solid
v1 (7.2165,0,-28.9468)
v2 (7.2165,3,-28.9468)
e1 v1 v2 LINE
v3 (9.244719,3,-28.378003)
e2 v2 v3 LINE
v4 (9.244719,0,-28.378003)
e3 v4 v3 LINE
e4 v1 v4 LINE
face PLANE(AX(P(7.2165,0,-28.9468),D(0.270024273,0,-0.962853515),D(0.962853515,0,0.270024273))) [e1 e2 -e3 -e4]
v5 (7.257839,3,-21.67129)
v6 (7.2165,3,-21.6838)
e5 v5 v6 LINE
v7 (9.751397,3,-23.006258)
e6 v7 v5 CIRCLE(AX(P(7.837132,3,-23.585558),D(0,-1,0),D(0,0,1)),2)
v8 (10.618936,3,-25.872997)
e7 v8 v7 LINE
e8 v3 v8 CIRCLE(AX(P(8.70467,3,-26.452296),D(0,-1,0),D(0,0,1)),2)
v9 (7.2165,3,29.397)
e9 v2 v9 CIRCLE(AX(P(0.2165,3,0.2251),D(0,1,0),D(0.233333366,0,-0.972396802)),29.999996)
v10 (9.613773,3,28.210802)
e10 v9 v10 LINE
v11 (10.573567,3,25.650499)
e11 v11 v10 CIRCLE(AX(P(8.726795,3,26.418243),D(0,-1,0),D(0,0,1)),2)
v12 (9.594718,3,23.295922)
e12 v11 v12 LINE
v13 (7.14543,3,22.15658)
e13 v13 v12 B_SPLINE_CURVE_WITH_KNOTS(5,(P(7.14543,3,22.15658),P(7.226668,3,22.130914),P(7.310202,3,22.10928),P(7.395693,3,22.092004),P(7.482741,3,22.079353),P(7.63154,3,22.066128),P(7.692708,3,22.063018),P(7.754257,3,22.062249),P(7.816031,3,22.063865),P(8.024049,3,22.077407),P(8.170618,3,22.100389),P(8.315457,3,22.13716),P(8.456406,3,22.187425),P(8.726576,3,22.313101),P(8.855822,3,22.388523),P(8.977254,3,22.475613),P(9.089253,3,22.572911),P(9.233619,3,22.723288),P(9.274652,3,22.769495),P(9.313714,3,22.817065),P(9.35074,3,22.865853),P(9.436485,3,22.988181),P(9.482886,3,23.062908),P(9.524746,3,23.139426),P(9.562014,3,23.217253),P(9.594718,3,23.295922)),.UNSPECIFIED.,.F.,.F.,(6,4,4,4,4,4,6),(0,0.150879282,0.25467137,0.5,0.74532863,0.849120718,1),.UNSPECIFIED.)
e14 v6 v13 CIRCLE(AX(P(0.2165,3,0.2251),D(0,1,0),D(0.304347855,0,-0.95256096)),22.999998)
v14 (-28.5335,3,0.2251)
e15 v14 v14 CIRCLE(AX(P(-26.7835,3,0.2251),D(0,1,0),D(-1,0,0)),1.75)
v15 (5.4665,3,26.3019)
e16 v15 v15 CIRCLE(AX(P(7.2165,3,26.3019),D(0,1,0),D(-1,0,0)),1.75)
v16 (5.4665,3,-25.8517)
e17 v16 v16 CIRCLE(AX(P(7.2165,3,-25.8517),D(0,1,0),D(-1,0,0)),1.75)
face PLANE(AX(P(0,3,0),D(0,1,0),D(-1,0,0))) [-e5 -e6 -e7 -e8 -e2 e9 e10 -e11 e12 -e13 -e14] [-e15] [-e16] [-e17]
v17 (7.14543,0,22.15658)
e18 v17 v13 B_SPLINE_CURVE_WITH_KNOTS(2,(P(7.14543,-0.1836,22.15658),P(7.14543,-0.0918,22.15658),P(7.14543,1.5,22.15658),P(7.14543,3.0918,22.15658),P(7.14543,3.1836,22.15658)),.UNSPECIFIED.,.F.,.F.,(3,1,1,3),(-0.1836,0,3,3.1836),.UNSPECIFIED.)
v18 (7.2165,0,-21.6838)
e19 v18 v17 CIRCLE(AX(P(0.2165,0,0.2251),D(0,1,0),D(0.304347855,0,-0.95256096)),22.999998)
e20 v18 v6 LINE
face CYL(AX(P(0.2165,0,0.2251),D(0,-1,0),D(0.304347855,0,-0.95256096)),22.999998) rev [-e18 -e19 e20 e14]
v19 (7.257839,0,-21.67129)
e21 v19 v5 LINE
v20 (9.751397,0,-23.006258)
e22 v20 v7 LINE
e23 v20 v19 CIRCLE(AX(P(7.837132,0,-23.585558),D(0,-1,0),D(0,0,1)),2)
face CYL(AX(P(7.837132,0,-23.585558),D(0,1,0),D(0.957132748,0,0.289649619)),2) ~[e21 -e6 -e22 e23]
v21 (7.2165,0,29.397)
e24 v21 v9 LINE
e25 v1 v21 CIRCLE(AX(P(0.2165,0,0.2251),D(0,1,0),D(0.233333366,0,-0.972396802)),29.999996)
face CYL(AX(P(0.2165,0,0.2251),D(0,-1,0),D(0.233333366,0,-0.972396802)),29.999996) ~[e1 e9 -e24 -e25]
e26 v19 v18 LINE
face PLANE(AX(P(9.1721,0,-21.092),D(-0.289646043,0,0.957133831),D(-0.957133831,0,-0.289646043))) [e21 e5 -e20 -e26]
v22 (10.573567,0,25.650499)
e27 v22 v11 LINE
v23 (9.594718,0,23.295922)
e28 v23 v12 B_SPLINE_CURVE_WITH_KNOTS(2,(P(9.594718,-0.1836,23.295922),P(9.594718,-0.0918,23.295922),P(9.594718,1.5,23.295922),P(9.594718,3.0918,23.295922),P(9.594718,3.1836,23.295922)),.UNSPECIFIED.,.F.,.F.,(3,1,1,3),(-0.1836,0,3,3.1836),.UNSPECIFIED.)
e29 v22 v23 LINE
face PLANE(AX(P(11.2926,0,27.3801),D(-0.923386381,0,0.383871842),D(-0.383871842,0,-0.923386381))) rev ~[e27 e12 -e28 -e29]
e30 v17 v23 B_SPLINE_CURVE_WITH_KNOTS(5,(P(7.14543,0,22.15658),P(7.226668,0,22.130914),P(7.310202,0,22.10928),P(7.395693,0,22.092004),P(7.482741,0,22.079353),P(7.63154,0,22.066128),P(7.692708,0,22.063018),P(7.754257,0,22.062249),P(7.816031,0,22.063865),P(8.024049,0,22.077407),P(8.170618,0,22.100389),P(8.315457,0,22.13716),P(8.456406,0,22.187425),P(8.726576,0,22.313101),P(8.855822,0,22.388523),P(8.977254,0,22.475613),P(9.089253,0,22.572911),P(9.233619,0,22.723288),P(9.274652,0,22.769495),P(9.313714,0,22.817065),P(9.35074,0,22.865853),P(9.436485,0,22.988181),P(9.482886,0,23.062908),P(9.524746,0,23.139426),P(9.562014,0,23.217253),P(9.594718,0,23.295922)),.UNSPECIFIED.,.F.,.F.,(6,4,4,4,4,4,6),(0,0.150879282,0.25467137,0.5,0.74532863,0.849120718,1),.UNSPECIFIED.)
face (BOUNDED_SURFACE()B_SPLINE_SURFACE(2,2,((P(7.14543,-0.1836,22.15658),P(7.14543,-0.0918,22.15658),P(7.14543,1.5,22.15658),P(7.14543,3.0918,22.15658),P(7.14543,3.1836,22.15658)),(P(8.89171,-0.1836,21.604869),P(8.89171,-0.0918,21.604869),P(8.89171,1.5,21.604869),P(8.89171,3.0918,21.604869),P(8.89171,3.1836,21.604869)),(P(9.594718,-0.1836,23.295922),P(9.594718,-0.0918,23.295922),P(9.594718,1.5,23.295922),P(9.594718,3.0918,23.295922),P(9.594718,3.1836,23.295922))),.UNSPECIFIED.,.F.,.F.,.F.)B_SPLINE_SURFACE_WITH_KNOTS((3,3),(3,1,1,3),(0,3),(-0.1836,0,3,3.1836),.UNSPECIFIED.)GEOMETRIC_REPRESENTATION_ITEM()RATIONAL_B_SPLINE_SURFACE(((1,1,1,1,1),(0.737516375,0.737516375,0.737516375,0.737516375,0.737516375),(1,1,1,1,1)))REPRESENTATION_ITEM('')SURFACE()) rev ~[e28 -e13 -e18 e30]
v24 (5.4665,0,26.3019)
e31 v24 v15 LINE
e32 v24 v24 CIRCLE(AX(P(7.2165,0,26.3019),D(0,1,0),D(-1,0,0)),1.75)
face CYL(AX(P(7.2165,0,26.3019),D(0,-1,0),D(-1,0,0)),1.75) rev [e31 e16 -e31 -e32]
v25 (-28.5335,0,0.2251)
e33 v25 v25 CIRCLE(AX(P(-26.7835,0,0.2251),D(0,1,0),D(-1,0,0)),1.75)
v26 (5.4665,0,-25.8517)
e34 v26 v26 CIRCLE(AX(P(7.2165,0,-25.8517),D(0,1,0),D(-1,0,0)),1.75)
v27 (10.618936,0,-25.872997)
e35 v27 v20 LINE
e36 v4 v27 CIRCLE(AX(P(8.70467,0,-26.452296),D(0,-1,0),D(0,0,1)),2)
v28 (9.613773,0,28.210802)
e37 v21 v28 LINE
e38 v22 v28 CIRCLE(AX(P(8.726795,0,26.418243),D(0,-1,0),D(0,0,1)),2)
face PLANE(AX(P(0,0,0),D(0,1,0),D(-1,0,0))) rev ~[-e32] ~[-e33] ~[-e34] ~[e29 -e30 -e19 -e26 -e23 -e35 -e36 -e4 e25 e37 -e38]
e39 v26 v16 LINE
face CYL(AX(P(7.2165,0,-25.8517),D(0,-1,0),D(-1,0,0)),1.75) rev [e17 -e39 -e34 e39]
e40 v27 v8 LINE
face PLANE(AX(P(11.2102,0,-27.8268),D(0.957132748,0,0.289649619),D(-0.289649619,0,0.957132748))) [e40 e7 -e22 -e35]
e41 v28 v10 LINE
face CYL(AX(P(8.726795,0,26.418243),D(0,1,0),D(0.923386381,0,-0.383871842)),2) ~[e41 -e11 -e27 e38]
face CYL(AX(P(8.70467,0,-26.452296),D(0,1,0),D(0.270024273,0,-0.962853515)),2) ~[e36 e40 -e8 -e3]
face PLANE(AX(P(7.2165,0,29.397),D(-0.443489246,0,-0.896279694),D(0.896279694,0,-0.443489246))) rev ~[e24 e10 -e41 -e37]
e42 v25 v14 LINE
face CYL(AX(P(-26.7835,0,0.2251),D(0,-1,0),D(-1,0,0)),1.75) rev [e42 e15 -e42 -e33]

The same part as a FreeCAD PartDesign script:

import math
import FreeCAD as App
import Part
import Sketcher
from FreeCAD import Vector
Q = App.Units.Quantity


def edges_at(feature, points):
    """Names of the edges that pass closest to the given points."""
    edges = feature.Shape.Edges
    near = lambda p: min(range(len(edges)), key=lambda i: edges[i].distToShape(Part.Vertex(*p))[0])
    return sorted({f"Edge{near(p) + 1}" for p in points})

doc = App.newDocument("Part")
params = doc.addObject("Spreadsheet::Sheet", "Params")
for row, (alias, value) in enumerate([
    ("sketch1_radius", "30 mm"),
    ("sketch1_radius2", "23 mm"),
    ("sketch1_diameter", "3.5 mm"),
    ("sketch1_length", "1.75 mm"),
    ("pad1_length", "3 mm"),
    ("fillet_radius", "2 mm"),
], start=1):
    params.set(f"A{row}", alias)
    params.set(f"B{row}", "=" + value)
    params.setAlias(f"B{row}", alias)

body = doc.addObject("PartDesign::Body", "Body")

# Sketch on XZ plane
sketch1 = body.newObject("Sketcher::SketchObject", "Sketch")
sketch1.AttachmentSupport = (doc.getObject("XZ_Plane"), [""])
sketch1.MapMode = "FlatFace"
sketch1.addGeometry([
    Part.LineSegment(Vector(11.2, -27.8, 0), Vector(7.2, -28.9, 0)),  # 0
    Part.ArcOfCircle(Part.Circle(Vector(0.2, 0.2, 0), Vector(0, 0, 1), 30), math.radians(77), math.radians(283)),  # 1
    Part.LineSegment(Vector(7.2, 29.4, 0), Vector(11.3, 27.4, 0)),  # 2
    Part.LineSegment(Vector(11.3, 27.4, 0), Vector(8.8, 21.5, 0)),  # 3
    Part.LineSegment(Vector(8.8, 21.5, 0), Vector(7.2, 22.1, 0)),  # 4
    Part.ArcOfCircle(Part.Circle(Vector(0.2, 0.2, 0), Vector(0, 0, 1), 23), math.radians(72), math.radians(288)),  # 5
    Part.LineSegment(Vector(7.2, -21.7, 0), Vector(9.2, -21.1, 0)),  # 6
    Part.LineSegment(Vector(9.2, -21.1, 0), Vector(11.2, -27.8, 0)),  # 7
    Part.Circle(Vector(7.2, -25.9, 0), Vector(0, 0, 1), 1.8),  # 8
    Part.Circle(Vector(7.2, 26.3, 0), Vector(0, 0, 1), 1.8),  # 9
    Part.Circle(Vector(-26.8, 0.2, 0), Vector(0, 0, 1), 1.8),  # 10
], False)
sketch1.addConstraint([
    Sketcher.Constraint("Coincident", 0, 2, 1, 2),
    Sketcher.Constraint("Coincident", 1, 1, 2, 1),
    Sketcher.Constraint("Coincident", 2, 2, 3, 1),
    Sketcher.Constraint("Coincident", 3, 2, 4, 1),
    Sketcher.Constraint("Coincident", 4, 2, 5, 1),
    Sketcher.Constraint("Coincident", 5, 2, 6, 1),
    Sketcher.Constraint("Coincident", 6, 2, 7, 1),
    Sketcher.Constraint("Coincident", 7, 2, 0, 1),
    Sketcher.Constraint("Coincident", 5, 3, 1, 3),
    Sketcher.Constraint("Equal", 8, 9),
    Sketcher.Constraint("Equal", 9, 10),
    Sketcher.Constraint("Perpendicular", 3, 4),
    Sketcher.Constraint("Perpendicular", 6, 7),
    Sketcher.Constraint("Horizontal", 5, 3, 10, 3),
    Sketcher.Constraint("Vertical", 8, 3, 9, 3),
    Sketcher.Constraint("Vertical", 9, 3, 0, 2),
    Sketcher.Constraint("Vertical", 0, 2, 1, 1),
    Sketcher.Constraint("Vertical", 1, 1, 4, 2),
    Sketcher.Constraint("Vertical", 4, 2, 5, 2),
    Sketcher.Constraint("Radius", 1, Q("30 mm")),
    Sketcher.Constraint("Radius", 5, Q("23 mm")),
    Sketcher.Constraint("Diameter", 8, Q("3.5 mm")),
    Sketcher.Constraint("DistanceX", 1, 3, 8, 3, Q("7 mm")),
    Sketcher.Constraint("DistanceX", 10, 3, 1, 3, Q("27 mm")),
    Sketcher.Constraint("Distance", 4, Q("1.75 mm")),
    Sketcher.Constraint("DistanceY", -1, 1, 2, 2, Q("27.38 mm")),
    Sketcher.Constraint("DistanceY", 0, 2, 7, 2, Q("1.12 mm")),
    Sketcher.Constraint("Distance", 3, Q("6.409 mm")),
    Sketcher.Constraint("DistanceY", -1, 1, 1, 3, Q("0.225 mm")),
    Sketcher.Constraint("DistanceY", -1, 1, 9, 3, Q("26.302 mm")),
    Sketcher.Constraint("DistanceX", -1, 1, 6, 2, Q("9.172 mm")),
    Sketcher.Constraint("DistanceY", 6, 2, -1, 1, Q("21.092 mm")),
    Sketcher.Constraint("DistanceY", 0, 2, 8, 3, Q("3.095 mm")),
    Sketcher.Constraint("DistanceX", 6, 2, 7, 2, Q("2.038 mm")),
])
sketch1.setExpression("Constraints[19]", "Params.sketch1_radius")
sketch1.setExpression("Constraints[20]", "Params.sketch1_radius2")
sketch1.setExpression("Constraints[21]", "Params.sketch1_diameter")
sketch1.setExpression("Constraints[24]", "Params.sketch1_length")
pad1 = body.newObject("PartDesign::Pad", "Pad")
pad1.Profile = sketch1
pad1.setExpression("Length", "Params.pad1_length")
pad1.Reversed = True
doc.recompute()

fillet = body.newObject("PartDesign::Fillet", "Fillet")
fillet.Base = (pad1, edges_at(pad1, [
    (11.293, 1.5, 27.38),
    (8.832, 1.5, 21.462),
    (11.21, 1.5, -27.827),
    (9.172, 1.5, -21.092),
]))
fillet.setExpression("Radius", "Params.fillet_radius")

doc.recompute()
